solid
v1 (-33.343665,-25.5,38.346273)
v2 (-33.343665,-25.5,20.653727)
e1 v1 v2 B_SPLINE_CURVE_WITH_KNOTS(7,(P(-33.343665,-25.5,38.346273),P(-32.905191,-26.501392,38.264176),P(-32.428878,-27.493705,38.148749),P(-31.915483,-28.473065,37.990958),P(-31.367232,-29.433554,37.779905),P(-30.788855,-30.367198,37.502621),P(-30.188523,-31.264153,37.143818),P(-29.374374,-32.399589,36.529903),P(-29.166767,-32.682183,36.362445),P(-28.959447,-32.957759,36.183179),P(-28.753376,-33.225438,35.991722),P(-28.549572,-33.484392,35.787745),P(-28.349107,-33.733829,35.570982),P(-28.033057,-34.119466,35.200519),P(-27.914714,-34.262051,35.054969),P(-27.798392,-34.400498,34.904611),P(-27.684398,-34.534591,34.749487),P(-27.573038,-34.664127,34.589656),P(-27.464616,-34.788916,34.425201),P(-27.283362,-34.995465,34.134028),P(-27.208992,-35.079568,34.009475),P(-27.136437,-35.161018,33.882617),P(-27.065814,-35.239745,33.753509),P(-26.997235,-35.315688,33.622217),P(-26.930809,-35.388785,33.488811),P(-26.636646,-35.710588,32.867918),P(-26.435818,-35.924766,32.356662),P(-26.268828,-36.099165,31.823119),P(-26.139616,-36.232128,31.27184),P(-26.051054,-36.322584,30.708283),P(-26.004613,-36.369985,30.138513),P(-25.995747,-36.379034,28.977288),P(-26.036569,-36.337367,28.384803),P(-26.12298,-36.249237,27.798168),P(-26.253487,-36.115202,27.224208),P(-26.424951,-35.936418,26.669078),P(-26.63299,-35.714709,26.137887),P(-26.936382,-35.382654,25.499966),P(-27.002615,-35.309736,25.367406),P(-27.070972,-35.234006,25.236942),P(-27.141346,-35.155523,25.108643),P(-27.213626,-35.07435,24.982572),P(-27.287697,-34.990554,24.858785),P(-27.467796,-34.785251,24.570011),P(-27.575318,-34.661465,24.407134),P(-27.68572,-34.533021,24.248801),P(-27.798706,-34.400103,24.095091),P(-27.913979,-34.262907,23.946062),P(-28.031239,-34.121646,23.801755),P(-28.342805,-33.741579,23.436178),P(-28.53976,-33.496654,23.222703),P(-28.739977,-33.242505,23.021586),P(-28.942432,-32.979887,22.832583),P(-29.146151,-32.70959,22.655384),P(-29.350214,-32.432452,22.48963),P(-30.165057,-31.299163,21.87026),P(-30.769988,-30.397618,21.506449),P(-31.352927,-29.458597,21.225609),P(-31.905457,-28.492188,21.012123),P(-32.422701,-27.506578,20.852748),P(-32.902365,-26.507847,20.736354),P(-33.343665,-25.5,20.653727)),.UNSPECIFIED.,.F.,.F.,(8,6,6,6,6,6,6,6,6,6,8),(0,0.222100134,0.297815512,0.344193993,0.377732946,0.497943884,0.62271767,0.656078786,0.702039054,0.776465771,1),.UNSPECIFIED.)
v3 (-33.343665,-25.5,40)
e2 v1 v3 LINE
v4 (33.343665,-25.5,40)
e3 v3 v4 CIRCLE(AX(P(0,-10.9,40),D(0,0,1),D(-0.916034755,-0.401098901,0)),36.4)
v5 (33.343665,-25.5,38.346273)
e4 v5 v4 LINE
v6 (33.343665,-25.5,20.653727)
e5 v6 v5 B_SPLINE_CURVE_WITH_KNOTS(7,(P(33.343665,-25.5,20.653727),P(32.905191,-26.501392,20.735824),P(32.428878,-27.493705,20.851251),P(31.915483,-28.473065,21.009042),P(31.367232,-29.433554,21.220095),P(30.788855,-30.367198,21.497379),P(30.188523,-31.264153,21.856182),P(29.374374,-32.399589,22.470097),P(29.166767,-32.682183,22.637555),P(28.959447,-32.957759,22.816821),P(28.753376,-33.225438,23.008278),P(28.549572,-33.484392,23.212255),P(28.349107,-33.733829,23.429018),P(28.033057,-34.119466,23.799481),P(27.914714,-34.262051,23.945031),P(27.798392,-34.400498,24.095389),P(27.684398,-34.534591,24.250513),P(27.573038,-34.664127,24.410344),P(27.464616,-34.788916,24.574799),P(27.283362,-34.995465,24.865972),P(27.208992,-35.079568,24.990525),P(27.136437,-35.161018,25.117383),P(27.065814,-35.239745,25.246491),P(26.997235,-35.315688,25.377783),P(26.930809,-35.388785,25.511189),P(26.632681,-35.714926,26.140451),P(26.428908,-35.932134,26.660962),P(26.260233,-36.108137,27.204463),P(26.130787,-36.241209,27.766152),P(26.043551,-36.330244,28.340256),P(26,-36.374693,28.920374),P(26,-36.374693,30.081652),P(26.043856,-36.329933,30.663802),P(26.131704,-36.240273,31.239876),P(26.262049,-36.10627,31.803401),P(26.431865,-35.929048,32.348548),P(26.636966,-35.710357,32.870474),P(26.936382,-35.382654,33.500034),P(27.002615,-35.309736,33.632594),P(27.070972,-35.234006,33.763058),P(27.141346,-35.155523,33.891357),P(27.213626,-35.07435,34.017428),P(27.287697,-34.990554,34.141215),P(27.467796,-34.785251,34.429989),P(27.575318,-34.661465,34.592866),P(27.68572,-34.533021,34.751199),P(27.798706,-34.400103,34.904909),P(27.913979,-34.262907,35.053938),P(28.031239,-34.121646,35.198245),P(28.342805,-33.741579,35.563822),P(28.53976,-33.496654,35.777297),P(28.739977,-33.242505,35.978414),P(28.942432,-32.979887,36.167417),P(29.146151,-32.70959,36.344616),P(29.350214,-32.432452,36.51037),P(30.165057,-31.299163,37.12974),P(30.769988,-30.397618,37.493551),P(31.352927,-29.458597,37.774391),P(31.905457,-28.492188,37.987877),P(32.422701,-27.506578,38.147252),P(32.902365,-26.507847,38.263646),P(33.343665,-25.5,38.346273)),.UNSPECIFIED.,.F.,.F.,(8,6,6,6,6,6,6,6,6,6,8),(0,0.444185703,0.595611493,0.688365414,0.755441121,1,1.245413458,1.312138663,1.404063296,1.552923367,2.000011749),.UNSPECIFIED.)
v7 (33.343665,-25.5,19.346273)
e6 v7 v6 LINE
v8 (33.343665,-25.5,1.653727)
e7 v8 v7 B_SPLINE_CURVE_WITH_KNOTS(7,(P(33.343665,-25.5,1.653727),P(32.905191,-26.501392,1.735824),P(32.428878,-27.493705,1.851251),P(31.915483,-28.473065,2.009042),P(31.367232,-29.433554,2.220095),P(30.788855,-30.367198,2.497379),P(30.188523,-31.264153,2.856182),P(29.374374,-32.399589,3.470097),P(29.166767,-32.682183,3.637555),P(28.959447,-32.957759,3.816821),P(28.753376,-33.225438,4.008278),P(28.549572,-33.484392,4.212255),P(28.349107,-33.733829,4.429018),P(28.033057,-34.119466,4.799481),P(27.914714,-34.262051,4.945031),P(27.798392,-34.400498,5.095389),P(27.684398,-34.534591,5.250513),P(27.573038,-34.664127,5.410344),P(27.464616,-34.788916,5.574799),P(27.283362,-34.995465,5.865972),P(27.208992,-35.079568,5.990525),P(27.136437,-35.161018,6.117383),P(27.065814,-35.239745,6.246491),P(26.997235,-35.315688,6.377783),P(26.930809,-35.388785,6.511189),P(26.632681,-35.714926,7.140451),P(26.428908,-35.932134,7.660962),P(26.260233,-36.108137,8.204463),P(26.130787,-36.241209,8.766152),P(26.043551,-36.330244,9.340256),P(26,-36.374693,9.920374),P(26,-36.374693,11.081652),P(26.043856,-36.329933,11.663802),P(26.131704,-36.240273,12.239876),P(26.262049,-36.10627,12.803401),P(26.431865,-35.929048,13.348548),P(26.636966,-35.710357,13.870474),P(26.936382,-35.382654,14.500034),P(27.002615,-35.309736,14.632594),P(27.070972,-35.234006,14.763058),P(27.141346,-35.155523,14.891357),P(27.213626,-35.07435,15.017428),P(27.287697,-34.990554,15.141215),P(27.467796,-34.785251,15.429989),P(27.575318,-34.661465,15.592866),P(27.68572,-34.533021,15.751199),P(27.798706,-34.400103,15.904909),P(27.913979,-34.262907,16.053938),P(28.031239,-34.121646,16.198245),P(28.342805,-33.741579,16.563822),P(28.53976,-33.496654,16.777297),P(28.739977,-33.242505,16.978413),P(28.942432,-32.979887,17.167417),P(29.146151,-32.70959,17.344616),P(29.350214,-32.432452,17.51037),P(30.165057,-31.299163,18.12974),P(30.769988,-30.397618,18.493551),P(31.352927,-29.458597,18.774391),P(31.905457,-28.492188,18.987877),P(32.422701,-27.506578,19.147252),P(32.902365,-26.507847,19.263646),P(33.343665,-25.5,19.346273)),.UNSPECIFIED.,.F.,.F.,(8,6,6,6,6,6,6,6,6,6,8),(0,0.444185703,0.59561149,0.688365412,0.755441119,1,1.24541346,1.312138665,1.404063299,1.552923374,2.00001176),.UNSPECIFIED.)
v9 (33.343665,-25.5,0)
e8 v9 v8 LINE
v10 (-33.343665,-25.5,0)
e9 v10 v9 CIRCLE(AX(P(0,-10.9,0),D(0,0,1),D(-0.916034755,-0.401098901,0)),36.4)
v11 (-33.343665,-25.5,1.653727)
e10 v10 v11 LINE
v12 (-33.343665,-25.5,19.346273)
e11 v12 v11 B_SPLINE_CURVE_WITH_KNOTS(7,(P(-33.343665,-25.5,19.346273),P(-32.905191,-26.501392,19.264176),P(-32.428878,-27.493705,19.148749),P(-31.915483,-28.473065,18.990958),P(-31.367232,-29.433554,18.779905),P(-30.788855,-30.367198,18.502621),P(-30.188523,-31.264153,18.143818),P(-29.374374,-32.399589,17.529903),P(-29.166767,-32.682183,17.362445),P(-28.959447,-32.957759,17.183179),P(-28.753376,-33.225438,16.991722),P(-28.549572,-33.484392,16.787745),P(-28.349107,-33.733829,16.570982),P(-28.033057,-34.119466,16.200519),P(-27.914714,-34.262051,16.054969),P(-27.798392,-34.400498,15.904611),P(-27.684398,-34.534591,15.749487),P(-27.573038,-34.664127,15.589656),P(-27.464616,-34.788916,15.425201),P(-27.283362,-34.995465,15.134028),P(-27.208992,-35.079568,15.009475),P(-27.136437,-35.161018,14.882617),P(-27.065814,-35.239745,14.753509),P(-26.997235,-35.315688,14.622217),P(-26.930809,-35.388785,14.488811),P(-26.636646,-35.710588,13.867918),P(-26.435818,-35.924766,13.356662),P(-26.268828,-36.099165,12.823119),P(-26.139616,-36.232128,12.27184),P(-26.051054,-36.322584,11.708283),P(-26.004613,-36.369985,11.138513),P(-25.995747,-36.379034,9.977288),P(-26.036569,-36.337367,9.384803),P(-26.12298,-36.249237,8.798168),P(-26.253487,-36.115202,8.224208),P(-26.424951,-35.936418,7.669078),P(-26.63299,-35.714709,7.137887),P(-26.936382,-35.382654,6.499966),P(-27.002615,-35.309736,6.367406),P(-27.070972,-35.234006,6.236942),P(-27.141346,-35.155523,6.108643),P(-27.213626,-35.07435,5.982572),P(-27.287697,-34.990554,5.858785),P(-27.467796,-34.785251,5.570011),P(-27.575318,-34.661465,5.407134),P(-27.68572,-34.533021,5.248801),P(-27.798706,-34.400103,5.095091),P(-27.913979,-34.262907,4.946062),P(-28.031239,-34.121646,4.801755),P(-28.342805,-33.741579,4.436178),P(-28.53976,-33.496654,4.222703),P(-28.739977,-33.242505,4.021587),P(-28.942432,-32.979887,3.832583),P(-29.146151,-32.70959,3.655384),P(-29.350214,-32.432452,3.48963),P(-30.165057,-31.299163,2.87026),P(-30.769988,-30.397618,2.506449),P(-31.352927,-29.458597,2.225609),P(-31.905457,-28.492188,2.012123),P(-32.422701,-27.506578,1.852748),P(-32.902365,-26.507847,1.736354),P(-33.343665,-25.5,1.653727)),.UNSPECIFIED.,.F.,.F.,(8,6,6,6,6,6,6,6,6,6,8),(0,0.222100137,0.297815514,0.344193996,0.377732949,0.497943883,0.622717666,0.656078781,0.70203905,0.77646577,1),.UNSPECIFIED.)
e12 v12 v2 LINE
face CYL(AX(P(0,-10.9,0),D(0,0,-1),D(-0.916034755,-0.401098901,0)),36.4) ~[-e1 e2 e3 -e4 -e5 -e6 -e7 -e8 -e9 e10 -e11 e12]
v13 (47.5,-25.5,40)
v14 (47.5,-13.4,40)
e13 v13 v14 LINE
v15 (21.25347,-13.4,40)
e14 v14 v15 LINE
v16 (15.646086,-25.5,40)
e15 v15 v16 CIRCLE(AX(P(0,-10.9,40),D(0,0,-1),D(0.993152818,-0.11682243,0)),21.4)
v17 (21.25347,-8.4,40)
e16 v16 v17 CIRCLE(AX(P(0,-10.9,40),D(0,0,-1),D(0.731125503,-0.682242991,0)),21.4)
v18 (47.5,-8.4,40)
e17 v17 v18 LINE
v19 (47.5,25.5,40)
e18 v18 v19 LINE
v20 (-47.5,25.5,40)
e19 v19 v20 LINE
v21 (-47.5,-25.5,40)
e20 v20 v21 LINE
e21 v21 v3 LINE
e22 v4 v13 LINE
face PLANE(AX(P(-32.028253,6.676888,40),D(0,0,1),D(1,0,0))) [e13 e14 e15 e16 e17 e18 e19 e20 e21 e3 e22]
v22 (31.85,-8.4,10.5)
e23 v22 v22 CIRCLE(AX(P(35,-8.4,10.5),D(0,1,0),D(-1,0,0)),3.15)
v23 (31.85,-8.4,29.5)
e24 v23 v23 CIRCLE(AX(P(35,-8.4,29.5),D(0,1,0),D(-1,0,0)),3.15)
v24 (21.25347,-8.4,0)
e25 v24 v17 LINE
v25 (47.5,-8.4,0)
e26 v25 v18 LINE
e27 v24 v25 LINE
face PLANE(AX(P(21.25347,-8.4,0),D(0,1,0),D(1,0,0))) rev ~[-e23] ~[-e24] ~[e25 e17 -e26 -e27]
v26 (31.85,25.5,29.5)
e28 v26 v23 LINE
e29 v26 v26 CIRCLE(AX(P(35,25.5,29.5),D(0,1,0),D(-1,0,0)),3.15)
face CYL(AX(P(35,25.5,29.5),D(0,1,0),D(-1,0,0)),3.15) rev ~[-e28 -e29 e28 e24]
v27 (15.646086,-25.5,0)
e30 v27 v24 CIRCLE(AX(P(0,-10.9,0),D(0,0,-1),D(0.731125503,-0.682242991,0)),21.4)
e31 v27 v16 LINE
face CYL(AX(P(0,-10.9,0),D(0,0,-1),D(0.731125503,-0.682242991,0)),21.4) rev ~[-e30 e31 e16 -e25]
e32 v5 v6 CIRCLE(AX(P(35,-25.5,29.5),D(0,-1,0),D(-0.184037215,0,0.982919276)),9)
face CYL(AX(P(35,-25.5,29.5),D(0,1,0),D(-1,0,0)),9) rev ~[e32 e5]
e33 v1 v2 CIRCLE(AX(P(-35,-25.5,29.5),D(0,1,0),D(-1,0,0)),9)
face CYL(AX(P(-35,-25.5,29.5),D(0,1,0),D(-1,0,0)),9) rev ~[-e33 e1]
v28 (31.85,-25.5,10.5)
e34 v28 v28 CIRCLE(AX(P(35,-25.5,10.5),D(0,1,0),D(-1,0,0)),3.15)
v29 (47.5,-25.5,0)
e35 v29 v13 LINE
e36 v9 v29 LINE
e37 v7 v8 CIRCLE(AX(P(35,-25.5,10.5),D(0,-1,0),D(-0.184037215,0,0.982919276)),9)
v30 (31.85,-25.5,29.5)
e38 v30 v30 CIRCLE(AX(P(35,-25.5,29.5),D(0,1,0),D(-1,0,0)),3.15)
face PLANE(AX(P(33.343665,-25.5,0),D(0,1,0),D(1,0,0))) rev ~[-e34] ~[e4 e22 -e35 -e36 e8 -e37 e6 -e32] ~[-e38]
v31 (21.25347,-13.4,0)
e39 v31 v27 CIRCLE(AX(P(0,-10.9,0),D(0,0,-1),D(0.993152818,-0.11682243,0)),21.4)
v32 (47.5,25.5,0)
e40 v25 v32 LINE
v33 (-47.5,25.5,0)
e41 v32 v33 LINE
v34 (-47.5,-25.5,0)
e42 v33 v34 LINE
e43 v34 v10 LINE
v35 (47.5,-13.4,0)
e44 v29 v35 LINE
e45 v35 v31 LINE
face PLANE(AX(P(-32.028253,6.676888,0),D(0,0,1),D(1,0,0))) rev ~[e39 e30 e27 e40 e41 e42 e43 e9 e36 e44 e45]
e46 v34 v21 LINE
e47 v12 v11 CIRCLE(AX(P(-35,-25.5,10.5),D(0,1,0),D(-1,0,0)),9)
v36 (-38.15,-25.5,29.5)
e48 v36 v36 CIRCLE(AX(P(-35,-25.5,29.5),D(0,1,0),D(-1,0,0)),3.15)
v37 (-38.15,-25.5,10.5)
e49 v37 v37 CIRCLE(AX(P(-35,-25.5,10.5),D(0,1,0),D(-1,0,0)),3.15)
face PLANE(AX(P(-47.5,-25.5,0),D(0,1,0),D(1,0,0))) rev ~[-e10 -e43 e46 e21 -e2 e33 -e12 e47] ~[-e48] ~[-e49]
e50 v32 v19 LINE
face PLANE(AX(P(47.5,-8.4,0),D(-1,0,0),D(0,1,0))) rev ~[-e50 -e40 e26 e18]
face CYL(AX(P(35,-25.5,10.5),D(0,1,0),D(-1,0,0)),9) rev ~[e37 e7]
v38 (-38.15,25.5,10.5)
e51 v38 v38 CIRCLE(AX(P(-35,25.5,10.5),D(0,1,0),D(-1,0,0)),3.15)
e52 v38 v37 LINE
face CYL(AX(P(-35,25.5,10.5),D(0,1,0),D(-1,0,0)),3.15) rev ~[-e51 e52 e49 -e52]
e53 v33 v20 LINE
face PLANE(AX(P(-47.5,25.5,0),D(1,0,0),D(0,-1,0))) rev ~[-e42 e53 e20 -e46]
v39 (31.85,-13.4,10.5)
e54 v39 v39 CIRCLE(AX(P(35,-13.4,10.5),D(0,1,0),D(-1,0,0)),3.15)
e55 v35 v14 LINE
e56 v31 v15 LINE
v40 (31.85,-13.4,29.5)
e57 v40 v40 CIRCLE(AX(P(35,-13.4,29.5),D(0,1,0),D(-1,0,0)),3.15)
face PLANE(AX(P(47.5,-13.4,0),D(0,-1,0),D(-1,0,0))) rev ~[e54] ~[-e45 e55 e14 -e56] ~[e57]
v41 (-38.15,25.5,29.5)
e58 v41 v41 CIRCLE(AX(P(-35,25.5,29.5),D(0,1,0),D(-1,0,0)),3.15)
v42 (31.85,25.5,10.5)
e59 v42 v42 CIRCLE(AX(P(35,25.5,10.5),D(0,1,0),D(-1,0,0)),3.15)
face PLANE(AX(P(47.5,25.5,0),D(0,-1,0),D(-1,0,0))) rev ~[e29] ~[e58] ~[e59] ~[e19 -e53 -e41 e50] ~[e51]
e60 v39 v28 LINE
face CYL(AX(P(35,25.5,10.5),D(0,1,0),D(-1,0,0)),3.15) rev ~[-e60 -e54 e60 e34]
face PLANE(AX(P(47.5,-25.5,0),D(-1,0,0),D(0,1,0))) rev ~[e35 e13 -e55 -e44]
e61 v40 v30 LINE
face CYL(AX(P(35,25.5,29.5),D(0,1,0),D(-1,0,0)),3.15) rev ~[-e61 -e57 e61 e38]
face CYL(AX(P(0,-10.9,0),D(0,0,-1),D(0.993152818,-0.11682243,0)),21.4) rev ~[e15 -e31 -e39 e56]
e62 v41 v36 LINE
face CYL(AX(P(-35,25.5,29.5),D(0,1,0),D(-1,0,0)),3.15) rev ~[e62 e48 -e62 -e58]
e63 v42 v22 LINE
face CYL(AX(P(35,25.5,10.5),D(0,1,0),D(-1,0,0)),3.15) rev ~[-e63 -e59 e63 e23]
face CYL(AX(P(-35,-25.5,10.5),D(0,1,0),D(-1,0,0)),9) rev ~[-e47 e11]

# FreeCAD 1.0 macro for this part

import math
import FreeCAD as App
import Part
import Sketcher

V = App.Vector

doc = App.newDocument("Part")
body = doc.addObject("PartDesign::Body", "Body")

# Sketch on XY plane
sketch1 = body.newObject("Sketcher::SketchObject", "Sketch")
sketch1.AttachmentSupport = (doc.getObject("XY_Plane"), [""])
sketch1.MapMode = "FlatFace"
sketch1.addGeometry([
    Part.LineSegment(V(-48, -26, 0), V(-33, -26, 0)),  # 0
    Part.ArcOfCircle(Part.Circle(V(0, -11, 0), V(0, 0, 1), 36), math.radians(-156), math.radians(-24)),  # 1
    Part.LineSegment(V(33, -26, 0), V(48, -26, 0)),  # 2
    Part.LineSegment(V(48, -26, 0), V(48, -13, 0)),  # 3
    Part.LineSegment(V(48, -13, 0), V(21, -13, 0)),  # 4
    Part.ArcOfCircle(Part.Circle(V(0, -11, 0), V(0, 0, 1), 21), math.radians(-43), math.radians(-7)),  # 5
    Part.ArcOfCircle(Part.Circle(V(0, -11, 0), V(0, 0, 1), 21), math.radians(7), math.radians(317)),  # 6
    Part.LineSegment(V(21, -8, 0), V(48, -8, 0)),  # 7
    Part.LineSegment(V(48, -8, 0), V(48, 26, 0)),  # 8
    Part.LineSegment(V(48, 26, 0), V(-48, 26, 0)),  # 9
    Part.LineSegment(V(-48, 26, 0), V(-48, -26, 0)),  # 10
], False)
sketch1.addConstraint([
    Sketcher.Constraint("Coincident", 0, 2, 1, 1),
    Sketcher.Constraint("Coincident", 1, 2, 2, 1),
    Sketcher.Constraint("Coincident", 2, 2, 3, 1),
    Sketcher.Constraint("Coincident", 3, 2, 4, 1),
    Sketcher.Constraint("Coincident", 4, 2, 5, 2),
    Sketcher.Constraint("Tangent", 5, 1, 6, 2),
    Sketcher.Constraint("Coincident", 6, 1, 7, 1),
    Sketcher.Constraint("Coincident", 7, 2, 8, 1),
    Sketcher.Constraint("Coincident", 8, 2, 9, 1),
    Sketcher.Constraint("Coincident", 9, 2, 10, 1),
    Sketcher.Constraint("Coincident", 10, 2, 0, 1),
    Sketcher.Constraint("Horizontal", 0),
    Sketcher.Constraint("Horizontal", 2),
    Sketcher.Constraint("Vertical", 3),
    Sketcher.Constraint("Horizontal", 4),
    Sketcher.Constraint("Horizontal", 7),
    Sketcher.Constraint("Vertical", 8),
    Sketcher.Constraint("Horizontal", 9),
    Sketcher.Constraint("Vertical", 10),
    Sketcher.Constraint("Coincident", 5, 3, 1, 3),
    Sketcher.Constraint("Equal", 5, 6),
    Sketcher.Constraint("Symmetric", 2, 2, 9, 2, -1, 1),
    Sketcher.Constraint("Symmetric", 8, 2, 10, 2, -1, 1),
    Sketcher.Constraint("PointOnObject", 1, 3, -2),
    Sketcher.Constraint("Horizontal", 2, 2, 5, 1),
    Sketcher.Constraint("Vertical", 4, 2, 6, 1),
    Sketcher.Constraint("Radius", 1, 36.4),
    Sketcher.Constraint("Radius", 5, 21.4),
    Sketcher.Constraint("DistanceX", 9, 2, 9, 1, 95.0),
    Sketcher.Constraint("DistanceY", 10, 2, 10, 1, 51.0),
    Sketcher.Constraint("DistanceY", 3, 1, 3, 2, 12.1),
    Sketcher.Constraint("DistanceY", 8, 1, 8, 2, 33.9),
])
pad1 = body.newObject("PartDesign::Pad", "Pad")
pad1.Profile = sketch1
pad1.Length = 40

# Sketch on XZ plane
sketch2 = body.newObject("Sketcher::SketchObject", "Sketch001")
sketch2.AttachmentSupport = (doc.getObject("XZ_Plane"), [""])
sketch2.MapMode = "FlatFace"
sketch2.AttachmentOffset = App.Placement(V(0, 0, -25.5), App.Rotation())
sketch2.addGeometry([
    Part.Circle(V(35, 29.5, 0), V(0, 0, 1), 3.1),
    Part.Circle(V(35, 10.5, 0), V(0, 0, 1), 3.1),
    Part.Circle(V(-35, 29.5, 0), V(0, 0, 1), 3.1),
    Part.Circle(V(-35, 10.5, 0), V(0, 0, 1), 3.1),
], False)
sketch2.addConstraint([
    Sketcher.Constraint("Equal", 0, 1),
    Sketcher.Constraint("Equal", 1, 2),
    Sketcher.Constraint("Equal", 2, 3),
    Sketcher.Constraint("Symmetric", 0, 3, 2, 3, -2),
    Sketcher.Constraint("Symmetric", 1, 3, 3, 3, -2),
    Sketcher.Constraint("Vertical", 0, 3, 1, 3),
    Sketcher.Constraint("Diameter", 0, 6.3),
    Sketcher.Constraint("DistanceX", -1, 1, 0, 3, 35.0),
    Sketcher.Constraint("DistanceY", 1, 3, 0, 3, 19.0),
    Sketcher.Constraint("DistanceY", -1, 1, 0, 3, 29.5),
])
pocket1 = body.newObject("PartDesign::Pocket", "Pocket")
pocket1.Profile = sketch2
pocket1.Type = "ThroughAll"
pocket1.Reversed = True

# Sketch on XZ plane
sketch3 = body.newObject("Sketcher::SketchObject", "Sketch002")
sketch3.AttachmentSupport = (doc.getObject("XZ_Plane"), [""])
sketch3.MapMode = "FlatFace"
sketch3.AttachmentOffset = App.Placement(V(0, 0, 25.5), App.Rotation())
sketch3.addGeometry([
    Part.Circle(V(35, 29.5, 0), V(0, 0, 1), 9),  # 0
    Part.Circle(V(35, 29.5, 0), V(0, 0, 1), 3.1),  # 1
    Part.Circle(V(35, 10.5, 0), V(0, 0, 1), 9),  # 2
    Part.Circle(V(35, 10.5, 0), V(0, 0, 1), 3.1),  # 3
    Part.Circle(V(-35, 10.5, 0), V(0, 0, 1), 9),  # 4
    Part.Circle(V(-35, 10.5, 0), V(0, 0, 1), 3.1),  # 5
    Part.Circle(V(-35, 29.5, 0), V(0, 0, 1), 9),  # 6
    Part.Circle(V(-35, 29.5, 0), V(0, 0, 1), 3.1),  # 7
], False)
sketch3.addConstraint([
    Sketcher.Constraint("Coincident", 1, 3, 0, 3),
    Sketcher.Constraint("Coincident", 3, 3, 2, 3),
    Sketcher.Constraint("Coincident", 5, 3, 4, 3),
    Sketcher.Constraint("Coincident", 7, 3, 6, 3),
    Sketcher.Constraint("Equal", 0, 2),
    Sketcher.Constraint("Equal", 1, 3),
    Sketcher.Constraint("Equal", 2, 4),
    Sketcher.Constraint("Equal", 3, 5),
    Sketcher.Constraint("Equal", 4, 6),
    Sketcher.Constraint("Equal", 5, 7),
    Sketcher.Constraint("Symmetric", 2, 3, 4, 3, -2),
    Sketcher.Constraint("Symmetric", 0, 3, 6, 3, -2),
    Sketcher.Constraint("Vertical", 1, 3, 2, 3),
    Sketcher.Constraint("Diameter", 0, 18.0),
    Sketcher.Constraint("Diameter", 1, 6.3),
    Sketcher.Constraint("DistanceX", -1, 1, 0, 3, 35.0),
    Sketcher.Constraint("DistanceY", 2, 3, 0, 3, 19.0),
    Sketcher.Constraint("DistanceY", -1, 1, 0, 3, 29.5),
])
pocket2 = body.newObject("PartDesign::Pocket", "Pocket001")
pocket2.Profile = sketch3
pocket2.Length = 21.801
pocket2.Reversed = True

doc.recompute()
